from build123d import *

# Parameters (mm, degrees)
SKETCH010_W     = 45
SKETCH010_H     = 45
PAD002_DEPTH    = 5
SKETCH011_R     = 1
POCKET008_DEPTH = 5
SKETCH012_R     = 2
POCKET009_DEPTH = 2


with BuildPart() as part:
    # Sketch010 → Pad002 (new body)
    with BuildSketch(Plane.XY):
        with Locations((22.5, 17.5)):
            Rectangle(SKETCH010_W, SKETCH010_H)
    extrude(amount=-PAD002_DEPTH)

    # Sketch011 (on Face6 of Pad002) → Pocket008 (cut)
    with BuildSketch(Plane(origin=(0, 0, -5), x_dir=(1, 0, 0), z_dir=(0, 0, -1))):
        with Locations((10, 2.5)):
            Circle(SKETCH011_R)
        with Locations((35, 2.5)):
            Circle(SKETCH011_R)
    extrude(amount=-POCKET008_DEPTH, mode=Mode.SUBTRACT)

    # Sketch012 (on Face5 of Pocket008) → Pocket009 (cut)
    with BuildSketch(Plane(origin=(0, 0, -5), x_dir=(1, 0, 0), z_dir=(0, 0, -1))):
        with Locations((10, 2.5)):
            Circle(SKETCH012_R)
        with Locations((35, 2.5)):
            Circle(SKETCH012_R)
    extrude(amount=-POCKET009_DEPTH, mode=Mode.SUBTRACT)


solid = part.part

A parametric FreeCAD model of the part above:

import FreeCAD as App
import Part
import Sketcher


def add_polygon(sketch, points):
    """Adds a closed chain of lines whose ends are joined by coincident constraints."""
    first, n = sketch.GeometryCount, len(points)
    for a, b in zip(points, points[1:] + points[:1]):
        sketch.addGeometry(Part.LineSegment(App.Vector(*a, 0), App.Vector(*b, 0)), False)
    for i in range(n):
        sketch.addConstraint(Sketcher.Constraint("Coincident", first + i, 2, first + (i + 1) % n, 1))

doc = App.newDocument("Part")
body = doc.addObject("PartDesign::Body", "Body")

sketch1 = body.newObject("Sketcher::SketchObject", "Sketch")
sketch1.AttachmentSupport = (doc.getObject("XY_Plane"), [""])
sketch1.MapMode = "FlatFace"
add_polygon(sketch1, [(0, 40), (0, -5), (45, -5), (45, 40)])
sketch1.addConstraint([
    Sketcher.Constraint("Vertical", 0),
    Sketcher.Constraint("Horizontal", 1),
    Sketcher.Constraint("Vertical", 2),
    Sketcher.Constraint("Horizontal", 3),
    Sketcher.Constraint("PointOnObject", 0, 2, -2),
    Sketcher.Constraint("Equal", 3, 0),
    Sketcher.Constraint("DistanceX", 1, 1, 1, 2, 45.0),
    Sketcher.Constraint("DistanceY", 0, 2, -1, 1, 5.0),
])
pad1 = body.newObject("PartDesign::Pad", "Pad")
pad1.Profile = sketch1
pad1.Length = 5
pad1.Reversed = True

sketch2 = body.newObject("Sketcher::SketchObject", "Sketch001")
sketch2.AttachmentSupport = (doc.getObject("XY_Plane"), [""])
sketch2.MapMode = "FlatFace"
sketch2.AttachmentOffset = App.Placement(App.Vector(0, 0, -5), App.Rotation())
sketch2.addGeometry([
    Part.Circle(App.Vector(10, -2.5, 0), App.Vector(0, 0, 1), 1),
    Part.Circle(App.Vector(35, -2.5, 0), App.Vector(0, 0, 1), 1),
], False)
sketch2.addConstraint([
    Sketcher.Constraint("Equal", 0, 1),
    Sketcher.Constraint("Horizontal", 0, 3, 1, 3),
    Sketcher.Constraint("Diameter", 0, 2.0),
    Sketcher.Constraint("DistanceX", -1, 1, 0, 3, 10.0),
    Sketcher.Constraint("DistanceX", -1, 1, 1, 3, 35.0),
    Sketcher.Constraint("DistanceY", 0, 3, -1, 1, 2.5),
])
pocket1 = body.newObject("PartDesign::Pocket", "Pocket")
pocket1.Profile = sketch2
pocket1.Length = 5
pocket1.Reversed = True

sketch3 = body.newObject("Sketcher::SketchObject", "Sketch002")
sketch3.AttachmentSupport = (doc.getObject("XY_Plane"), [""])
sketch3.MapMode = "FlatFace"
sketch3.AttachmentOffset = App.Placement(App.Vector(0, 0, -5), App.Rotation())
sketch3.addGeometry([
    Part.Circle(App.Vector(10, -2.5, 0), App.Vector(0, 0, 1), 2),
    Part.Circle(App.Vector(35, -2.5, 0), App.Vector(0, 0, 1), 2),
], False)
sketch3.addConstraint([
    Sketcher.Constraint("Equal", 0, 1),
    Sketcher.Constraint("Horizontal", 0, 3, 1, 3),
    Sketcher.Constraint("Diameter", 0, 4.0),
    Sketcher.Constraint("DistanceX", -1, 1, 0, 3, 10.0),
    Sketcher.Constraint("DistanceX", -1, 1, 1, 3, 35.0),
    Sketcher.Constraint("DistanceY", 0, 3, -1, 1, 2.5),
])
pocket2 = body.newObject("PartDesign::Pocket", "Pocket001")
pocket2.Profile = sketch3
pocket2.Length = 2
pocket2.Reversed = True

doc.recompute()
